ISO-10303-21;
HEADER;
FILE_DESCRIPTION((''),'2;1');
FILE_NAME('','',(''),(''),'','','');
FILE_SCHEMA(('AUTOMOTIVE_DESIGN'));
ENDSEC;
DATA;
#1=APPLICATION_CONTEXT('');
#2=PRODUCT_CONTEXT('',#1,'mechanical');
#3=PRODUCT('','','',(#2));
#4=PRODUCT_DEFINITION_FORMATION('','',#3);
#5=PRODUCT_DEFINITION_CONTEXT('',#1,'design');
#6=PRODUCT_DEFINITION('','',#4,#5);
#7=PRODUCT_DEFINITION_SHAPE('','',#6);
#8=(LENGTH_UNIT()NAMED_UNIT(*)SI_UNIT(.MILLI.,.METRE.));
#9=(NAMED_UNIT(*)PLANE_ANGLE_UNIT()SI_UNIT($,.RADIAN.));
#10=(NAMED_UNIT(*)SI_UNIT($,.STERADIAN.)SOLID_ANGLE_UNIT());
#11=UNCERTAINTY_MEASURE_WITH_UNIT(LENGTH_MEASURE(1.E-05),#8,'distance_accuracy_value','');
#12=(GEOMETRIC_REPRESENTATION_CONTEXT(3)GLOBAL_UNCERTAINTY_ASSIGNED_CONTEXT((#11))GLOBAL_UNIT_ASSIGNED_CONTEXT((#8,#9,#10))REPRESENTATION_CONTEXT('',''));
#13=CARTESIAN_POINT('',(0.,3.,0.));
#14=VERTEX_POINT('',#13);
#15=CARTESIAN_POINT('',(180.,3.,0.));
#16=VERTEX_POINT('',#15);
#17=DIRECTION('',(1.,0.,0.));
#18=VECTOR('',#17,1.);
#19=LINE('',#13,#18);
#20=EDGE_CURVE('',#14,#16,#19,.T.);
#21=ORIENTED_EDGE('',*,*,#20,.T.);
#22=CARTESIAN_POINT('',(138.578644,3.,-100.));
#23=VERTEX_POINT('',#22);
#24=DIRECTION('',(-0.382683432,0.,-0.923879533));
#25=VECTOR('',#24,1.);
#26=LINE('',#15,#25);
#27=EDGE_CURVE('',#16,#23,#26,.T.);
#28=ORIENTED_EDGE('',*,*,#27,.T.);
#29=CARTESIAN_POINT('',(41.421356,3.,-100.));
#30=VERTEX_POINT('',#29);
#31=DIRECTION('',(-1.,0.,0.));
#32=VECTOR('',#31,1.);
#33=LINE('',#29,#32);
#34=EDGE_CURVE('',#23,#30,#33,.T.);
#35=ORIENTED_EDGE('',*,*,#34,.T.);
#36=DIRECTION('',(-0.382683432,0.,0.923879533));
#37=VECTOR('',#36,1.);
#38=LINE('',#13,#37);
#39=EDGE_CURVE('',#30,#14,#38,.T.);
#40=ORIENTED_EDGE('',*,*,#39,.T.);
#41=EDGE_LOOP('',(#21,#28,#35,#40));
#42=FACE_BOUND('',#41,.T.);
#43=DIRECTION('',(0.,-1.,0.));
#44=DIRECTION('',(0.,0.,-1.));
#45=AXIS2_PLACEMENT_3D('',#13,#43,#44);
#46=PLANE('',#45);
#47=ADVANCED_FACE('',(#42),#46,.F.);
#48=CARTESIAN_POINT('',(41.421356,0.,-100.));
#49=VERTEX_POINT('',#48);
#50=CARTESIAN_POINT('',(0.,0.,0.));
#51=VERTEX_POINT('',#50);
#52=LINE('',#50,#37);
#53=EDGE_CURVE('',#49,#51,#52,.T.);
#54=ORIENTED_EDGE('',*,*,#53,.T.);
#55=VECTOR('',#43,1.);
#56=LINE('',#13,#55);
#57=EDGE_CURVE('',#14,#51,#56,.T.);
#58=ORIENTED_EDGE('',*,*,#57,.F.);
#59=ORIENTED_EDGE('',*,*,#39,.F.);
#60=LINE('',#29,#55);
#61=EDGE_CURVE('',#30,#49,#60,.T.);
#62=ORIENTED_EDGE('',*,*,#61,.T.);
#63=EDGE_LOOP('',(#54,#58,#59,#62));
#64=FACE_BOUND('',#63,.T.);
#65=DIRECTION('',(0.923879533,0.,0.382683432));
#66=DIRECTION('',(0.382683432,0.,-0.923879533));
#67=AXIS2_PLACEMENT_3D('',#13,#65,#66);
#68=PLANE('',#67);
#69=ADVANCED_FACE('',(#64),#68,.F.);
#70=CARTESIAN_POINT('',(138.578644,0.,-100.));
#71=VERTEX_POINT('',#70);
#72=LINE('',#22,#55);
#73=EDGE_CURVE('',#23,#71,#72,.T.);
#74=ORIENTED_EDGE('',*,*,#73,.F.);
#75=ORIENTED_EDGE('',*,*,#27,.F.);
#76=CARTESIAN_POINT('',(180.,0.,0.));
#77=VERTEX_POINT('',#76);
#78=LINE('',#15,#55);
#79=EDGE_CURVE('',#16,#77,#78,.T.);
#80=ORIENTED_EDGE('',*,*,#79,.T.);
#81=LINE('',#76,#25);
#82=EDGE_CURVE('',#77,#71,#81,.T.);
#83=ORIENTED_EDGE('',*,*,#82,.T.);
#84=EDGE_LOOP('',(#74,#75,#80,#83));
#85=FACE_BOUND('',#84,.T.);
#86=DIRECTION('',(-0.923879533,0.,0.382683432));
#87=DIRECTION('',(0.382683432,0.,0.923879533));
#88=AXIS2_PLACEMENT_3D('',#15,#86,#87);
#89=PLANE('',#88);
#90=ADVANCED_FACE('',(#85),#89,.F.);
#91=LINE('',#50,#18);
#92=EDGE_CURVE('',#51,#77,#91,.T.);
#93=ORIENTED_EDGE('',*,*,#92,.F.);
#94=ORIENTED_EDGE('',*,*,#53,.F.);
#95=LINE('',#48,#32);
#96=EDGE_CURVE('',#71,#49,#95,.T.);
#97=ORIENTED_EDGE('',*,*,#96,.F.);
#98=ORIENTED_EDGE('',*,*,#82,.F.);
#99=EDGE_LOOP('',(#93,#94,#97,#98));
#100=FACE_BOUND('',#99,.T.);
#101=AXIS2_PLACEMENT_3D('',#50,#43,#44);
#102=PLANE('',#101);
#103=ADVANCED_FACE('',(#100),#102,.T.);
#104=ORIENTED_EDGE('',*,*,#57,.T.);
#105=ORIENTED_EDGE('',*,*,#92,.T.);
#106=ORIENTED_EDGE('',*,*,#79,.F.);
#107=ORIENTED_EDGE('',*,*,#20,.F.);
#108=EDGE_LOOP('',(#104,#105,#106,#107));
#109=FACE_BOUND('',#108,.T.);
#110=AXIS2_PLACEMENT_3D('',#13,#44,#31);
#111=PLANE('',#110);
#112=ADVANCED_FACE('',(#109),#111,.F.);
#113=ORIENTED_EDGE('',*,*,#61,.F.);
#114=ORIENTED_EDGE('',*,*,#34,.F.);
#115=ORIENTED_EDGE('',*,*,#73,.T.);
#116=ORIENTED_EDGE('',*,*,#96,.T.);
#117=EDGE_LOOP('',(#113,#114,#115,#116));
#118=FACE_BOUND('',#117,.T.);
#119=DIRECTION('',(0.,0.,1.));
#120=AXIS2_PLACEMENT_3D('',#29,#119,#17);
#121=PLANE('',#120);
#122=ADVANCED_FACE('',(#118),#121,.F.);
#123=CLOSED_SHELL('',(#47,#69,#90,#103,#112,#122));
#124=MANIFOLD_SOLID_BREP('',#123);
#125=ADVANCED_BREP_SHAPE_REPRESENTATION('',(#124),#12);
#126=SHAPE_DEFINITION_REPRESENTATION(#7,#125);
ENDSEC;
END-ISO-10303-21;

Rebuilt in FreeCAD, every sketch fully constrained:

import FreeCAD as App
import Part
import Sketcher
Q = App.Units.Quantity

doc = App.newDocument("Part")
body = doc.addObject("PartDesign::Body", "Body")

sketch1 = doc.addObject("Sketcher::SketchObject", "Sketch")
body.addObject(sketch1)
sketch1.AttachmentSupport = (doc.XZ_Plane, [""])
sketch1.MapMode = "FlatFace"
sketch1.addGeometry([
    Part.LineSegment(App.Vector(0, 0, 0), App.Vector(180, 0, 0)),
    Part.LineSegment(App.Vector(180, 0, 0), App.Vector(138.578644, -100, 0)),
    Part.LineSegment(App.Vector(138.578644, -100, 0), App.Vector(41.421356, -100, 0)),
    Part.LineSegment(App.Vector(41.421356, -100, 0), App.Vector(0, 0, 0)),
], False)
sketch1.addConstraint([
    Sketcher.Constraint("Coincident", 0, 2, 1, 1),
    Sketcher.Constraint("Coincident", 1, 2, 2, 1),
    Sketcher.Constraint("Coincident", 2, 2, 3, 1),
    Sketcher.Constraint("Coincident", 3, 2, 0, 1),
    Sketcher.Constraint("Horizontal", 0),
    Sketcher.Constraint("Horizontal", 2),
    Sketcher.Constraint("Coincident", 3, 2, -1, 1),
    Sketcher.Constraint("Equal", 1, 3),
    Sketcher.Constraint("DistanceX", 0, 1, 0, 2, 180.0),
    Sketcher.Constraint("DistanceY", 1, 2, -1, 1, 100.0),
    Sketcher.Constraint("Angle", 1, Q("-112.5 deg")),
])
pad1 = doc.addObject("PartDesign::Pad", "Pad")
body.addObject(pad1)
pad1.Profile = sketch1
pad1.Length = 3
pad1.Reversed = True

doc.recompute()
